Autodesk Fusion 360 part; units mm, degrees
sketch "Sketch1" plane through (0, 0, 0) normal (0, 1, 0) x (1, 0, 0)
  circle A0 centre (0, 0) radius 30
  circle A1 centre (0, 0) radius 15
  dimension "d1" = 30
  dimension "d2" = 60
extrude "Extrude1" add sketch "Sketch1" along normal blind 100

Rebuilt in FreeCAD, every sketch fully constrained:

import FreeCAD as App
import Part
import Sketcher
Q = App.Units.Quantity

doc = App.newDocument("Part")
body = doc.addObject("PartDesign::Body", "Body")

# Sketch on XZ plane
sketch1 = doc.addObject("Sketcher::SketchObject", "Sketch")
body.addObject(sketch1)
sketch1.AttachmentSupport = (doc.XZ_Plane, [""])
sketch1.MapMode = "FlatFace"
sketch1.addGeometry(Part.Circle(App.Vector(0, 0, 0), App.Vector(0, 0, 1), 30), False)
sketch1.addGeometry(Part.Circle(App.Vector(0, 0, 0), App.Vector(0, 0, 1), 15), False)
sketch1.addConstraint(Sketcher.Constraint("Coincident", 0, 3, -1, 1))
sketch1.addConstraint(Sketcher.Constraint("Coincident", 1, 3, -1, 1))
sketch1.addConstraint(Sketcher.Constraint("Diameter", 0, Q("2.3622 in")))
sketch1.addConstraint(Sketcher.Constraint("Diameter", 1, Q("1.1811 in")))
pad1 = doc.addObject("PartDesign::Pad", "Pad")
body.addObject(pad1)
pad1.Profile = sketch1
pad1.Length = Q("3.9370079 in")
pad1.Reversed = True

doc.recompute()
